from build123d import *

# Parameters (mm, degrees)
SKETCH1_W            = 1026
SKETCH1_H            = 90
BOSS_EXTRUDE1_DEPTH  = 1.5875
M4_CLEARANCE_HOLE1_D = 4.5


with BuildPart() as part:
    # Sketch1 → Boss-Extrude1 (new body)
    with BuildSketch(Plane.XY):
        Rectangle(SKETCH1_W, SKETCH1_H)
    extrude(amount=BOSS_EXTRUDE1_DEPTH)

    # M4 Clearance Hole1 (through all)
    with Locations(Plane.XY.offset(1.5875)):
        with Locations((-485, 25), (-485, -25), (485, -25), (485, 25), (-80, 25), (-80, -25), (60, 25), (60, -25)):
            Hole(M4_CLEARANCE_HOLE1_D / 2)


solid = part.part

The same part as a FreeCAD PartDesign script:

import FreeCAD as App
import Part
import Sketcher

V = App.Vector

doc = App.newDocument("Part")
body = doc.addObject("PartDesign::Body", "Body")

# Sketch on XY plane
sketch1 = body.newObject("Sketcher::SketchObject", "Sketch")
sketch1.AttachmentSupport = (doc.getObject("XY_Plane"), [""])
sketch1.MapMode = "FlatFace"
sketch1.addGeometry(Part.LineSegment(V(-513, 45, 0), V(-513, -45, 0)), False)
sketch1.addGeometry(Part.LineSegment(V(-513, -45, 0), V(513, -45, 0)), False)
sketch1.addGeometry(Part.LineSegment(V(513, -45, 0), V(513, 45, 0)), False)
sketch1.addGeometry(Part.LineSegment(V(513, 45, 0), V(-513, 45, 0)), False)
sketch1.addConstraint(Sketcher.Constraint("Coincident", 0, 2, 1, 1))
sketch1.addConstraint(Sketcher.Constraint("Coincident", 1, 2, 2, 1))
sketch1.addConstraint(Sketcher.Constraint("Coincident", 2, 2, 3, 1))
sketch1.addConstraint(Sketcher.Constraint("Coincident", 3, 2, 0, 1))
sketch1.addConstraint(Sketcher.Constraint("Vertical", 0))
sketch1.addConstraint(Sketcher.Constraint("Horizontal", 1))
sketch1.addConstraint(Sketcher.Constraint("Vertical", 2))
sketch1.addConstraint(Sketcher.Constraint("Horizontal", 3))
sketch1.addConstraint(Sketcher.Constraint("Symmetric", 0, 2, 2, 2, -1, 1))
sketch1.addConstraint(Sketcher.Constraint("DistanceX", 1, 1, 1, 2, 1026.0))
sketch1.addConstraint(Sketcher.Constraint("DistanceY", 0, 2, 0, 1, 90.0))
pad1 = body.newObject("PartDesign::Pad", "Pad")
pad1.Profile = sketch1
pad1.Length = 1.5875

# Sketch on XY plane
sketch2 = body.newObject("Sketcher::SketchObject", "Sketch001")
sketch2.AttachmentSupport = (doc.getObject("XY_Plane"), [""])
sketch2.MapMode = "FlatFace"
sketch2.AttachmentOffset = App.Placement(V(0, 0, 1.5875), App.Rotation())
sketch2.addGeometry(Part.Circle(V(-485, 25, 0), V(0, 0, 1), 2.2), False)
sketch2.addGeometry(Part.Circle(V(-485, -25, 0), V(0, 0, 1), 2.2), False)
sketch2.addGeometry(Part.Circle(V(485, -25, 0), V(0, 0, 1), 2.2), False)
sketch2.addGeometry(Part.Circle(V(485, 25, 0), V(0, 0, 1), 2.2), False)
sketch2.addGeometry(Part.Circle(V(-80, 25, 0), V(0, 0, 1), 2.2), False)
sketch2.addGeometry(Part.Circle(V(-80, -25, 0), V(0, 0, 1), 2.2), False)
sketch2.addGeometry(Part.Circle(V(60, 25, 0), V(0, 0, 1), 2.2), False)
sketch2.addGeometry(Part.Circle(V(60, -25, 0), V(0, 0, 1), 2.2), False)
sketch2.addConstraint(Sketcher.Constraint("Equal", 0, 1))
sketch2.addConstraint(Sketcher.Constraint("Equal", 1, 2))
sketch2.addConstraint(Sketcher.Constraint("Equal", 2, 3))
sketch2.addConstraint(Sketcher.Constraint("Equal", 3, 4))
sketch2.addConstraint(Sketcher.Constraint("Equal", 4, 5))
sketch2.addConstraint(Sketcher.Constraint("Equal", 5, 6))
sketch2.addConstraint(Sketcher.Constraint("Equal", 6, 7))
sketch2.addConstraint(Sketcher.Constraint("Symmetric", 0, 3, 2, 3, -1, 1))
sketch2.addConstraint(Sketcher.Constraint("Symmetric", 1, 3, 3, 3, -1, 1))
sketch2.addConstraint(Sketcher.Constraint("Symmetric", 1, 3, 2, 3, -2))
sketch2.addConstraint(Sketcher.Constraint("Symmetric", 4, 3, 5, 3, -1))
sketch2.addConstraint(Sketcher.Constraint("Symmetric", 6, 3, 7, 3, -1))
sketch2.addConstraint(Sketcher.Constraint("Horizontal", 3, 3, 4, 3))
sketch2.addConstraint(Sketcher.Constraint("Horizontal", 4, 3, 6, 3))
sketch2.addConstraint(Sketcher.Constraint("Diameter", 0, 4.5))
sketch2.addConstraint(Sketcher.Constraint("DistanceX", 0, 3, -1, 1, 485.0))
sketch2.addConstraint(Sketcher.Constraint("DistanceY", -1, 1, 0, 3, 25.0))
sketch2.addConstraint(Sketcher.Constraint("DistanceX", 4, 3, -1, 1, 80.0))
sketch2.addConstraint(Sketcher.Constraint("DistanceX", -1, 1, 6, 3, 60.0))
doc.recompute()
hole = body.newObject("PartDesign::Hole", "Hole")
hole.Profile = sketch2
hole.ThreadType = "None"
hole.Diameter = 4.5
hole.DepthType = "ThroughAll"

doc.recompute()
